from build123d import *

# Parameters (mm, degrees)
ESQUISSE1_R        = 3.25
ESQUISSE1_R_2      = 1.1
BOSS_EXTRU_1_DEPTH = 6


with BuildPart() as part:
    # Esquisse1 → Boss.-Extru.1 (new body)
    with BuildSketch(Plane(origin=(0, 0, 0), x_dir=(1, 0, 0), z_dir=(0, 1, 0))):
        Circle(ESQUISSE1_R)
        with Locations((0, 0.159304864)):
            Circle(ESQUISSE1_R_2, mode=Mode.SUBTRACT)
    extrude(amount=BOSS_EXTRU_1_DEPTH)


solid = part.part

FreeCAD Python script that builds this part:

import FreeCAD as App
import Part
import Sketcher
from FreeCAD import Vector

doc = App.newDocument("Part")
body = doc.addObject("PartDesign::Body", "Body")

# Sketch on XZ plane
sketch1 = body.newObject("Sketcher::SketchObject", "Sketch")
sketch1.AttachmentSupport = (doc.getObject("XZ_Plane"), [""])
sketch1.MapMode = "FlatFace"
sketch1.addGeometry([
    Part.Circle(Vector(0, 0, 0), Vector(0, 0, 1), 3.2),
    Part.Circle(Vector(0, -0.2, 0), Vector(0, 0, 1), 1.1),
], False)
sketch1.addConstraint([
    Sketcher.Constraint("Coincident", 0, 3, -1, 1),
    Sketcher.Constraint("PointOnObject", 1, 3, -2),
    Sketcher.Constraint("Diameter", 0, 6.5),
    Sketcher.Constraint("Diameter", 1, 2.2),
    Sketcher.Constraint("DistanceY", 1, 3, -1, 1, 0.159305),
])
pad1 = body.newObject("PartDesign::Pad", "Pad")
pad1.Profile = sketch1
pad1.Length = 6
pad1.Reversed = True

doc.recompute()
